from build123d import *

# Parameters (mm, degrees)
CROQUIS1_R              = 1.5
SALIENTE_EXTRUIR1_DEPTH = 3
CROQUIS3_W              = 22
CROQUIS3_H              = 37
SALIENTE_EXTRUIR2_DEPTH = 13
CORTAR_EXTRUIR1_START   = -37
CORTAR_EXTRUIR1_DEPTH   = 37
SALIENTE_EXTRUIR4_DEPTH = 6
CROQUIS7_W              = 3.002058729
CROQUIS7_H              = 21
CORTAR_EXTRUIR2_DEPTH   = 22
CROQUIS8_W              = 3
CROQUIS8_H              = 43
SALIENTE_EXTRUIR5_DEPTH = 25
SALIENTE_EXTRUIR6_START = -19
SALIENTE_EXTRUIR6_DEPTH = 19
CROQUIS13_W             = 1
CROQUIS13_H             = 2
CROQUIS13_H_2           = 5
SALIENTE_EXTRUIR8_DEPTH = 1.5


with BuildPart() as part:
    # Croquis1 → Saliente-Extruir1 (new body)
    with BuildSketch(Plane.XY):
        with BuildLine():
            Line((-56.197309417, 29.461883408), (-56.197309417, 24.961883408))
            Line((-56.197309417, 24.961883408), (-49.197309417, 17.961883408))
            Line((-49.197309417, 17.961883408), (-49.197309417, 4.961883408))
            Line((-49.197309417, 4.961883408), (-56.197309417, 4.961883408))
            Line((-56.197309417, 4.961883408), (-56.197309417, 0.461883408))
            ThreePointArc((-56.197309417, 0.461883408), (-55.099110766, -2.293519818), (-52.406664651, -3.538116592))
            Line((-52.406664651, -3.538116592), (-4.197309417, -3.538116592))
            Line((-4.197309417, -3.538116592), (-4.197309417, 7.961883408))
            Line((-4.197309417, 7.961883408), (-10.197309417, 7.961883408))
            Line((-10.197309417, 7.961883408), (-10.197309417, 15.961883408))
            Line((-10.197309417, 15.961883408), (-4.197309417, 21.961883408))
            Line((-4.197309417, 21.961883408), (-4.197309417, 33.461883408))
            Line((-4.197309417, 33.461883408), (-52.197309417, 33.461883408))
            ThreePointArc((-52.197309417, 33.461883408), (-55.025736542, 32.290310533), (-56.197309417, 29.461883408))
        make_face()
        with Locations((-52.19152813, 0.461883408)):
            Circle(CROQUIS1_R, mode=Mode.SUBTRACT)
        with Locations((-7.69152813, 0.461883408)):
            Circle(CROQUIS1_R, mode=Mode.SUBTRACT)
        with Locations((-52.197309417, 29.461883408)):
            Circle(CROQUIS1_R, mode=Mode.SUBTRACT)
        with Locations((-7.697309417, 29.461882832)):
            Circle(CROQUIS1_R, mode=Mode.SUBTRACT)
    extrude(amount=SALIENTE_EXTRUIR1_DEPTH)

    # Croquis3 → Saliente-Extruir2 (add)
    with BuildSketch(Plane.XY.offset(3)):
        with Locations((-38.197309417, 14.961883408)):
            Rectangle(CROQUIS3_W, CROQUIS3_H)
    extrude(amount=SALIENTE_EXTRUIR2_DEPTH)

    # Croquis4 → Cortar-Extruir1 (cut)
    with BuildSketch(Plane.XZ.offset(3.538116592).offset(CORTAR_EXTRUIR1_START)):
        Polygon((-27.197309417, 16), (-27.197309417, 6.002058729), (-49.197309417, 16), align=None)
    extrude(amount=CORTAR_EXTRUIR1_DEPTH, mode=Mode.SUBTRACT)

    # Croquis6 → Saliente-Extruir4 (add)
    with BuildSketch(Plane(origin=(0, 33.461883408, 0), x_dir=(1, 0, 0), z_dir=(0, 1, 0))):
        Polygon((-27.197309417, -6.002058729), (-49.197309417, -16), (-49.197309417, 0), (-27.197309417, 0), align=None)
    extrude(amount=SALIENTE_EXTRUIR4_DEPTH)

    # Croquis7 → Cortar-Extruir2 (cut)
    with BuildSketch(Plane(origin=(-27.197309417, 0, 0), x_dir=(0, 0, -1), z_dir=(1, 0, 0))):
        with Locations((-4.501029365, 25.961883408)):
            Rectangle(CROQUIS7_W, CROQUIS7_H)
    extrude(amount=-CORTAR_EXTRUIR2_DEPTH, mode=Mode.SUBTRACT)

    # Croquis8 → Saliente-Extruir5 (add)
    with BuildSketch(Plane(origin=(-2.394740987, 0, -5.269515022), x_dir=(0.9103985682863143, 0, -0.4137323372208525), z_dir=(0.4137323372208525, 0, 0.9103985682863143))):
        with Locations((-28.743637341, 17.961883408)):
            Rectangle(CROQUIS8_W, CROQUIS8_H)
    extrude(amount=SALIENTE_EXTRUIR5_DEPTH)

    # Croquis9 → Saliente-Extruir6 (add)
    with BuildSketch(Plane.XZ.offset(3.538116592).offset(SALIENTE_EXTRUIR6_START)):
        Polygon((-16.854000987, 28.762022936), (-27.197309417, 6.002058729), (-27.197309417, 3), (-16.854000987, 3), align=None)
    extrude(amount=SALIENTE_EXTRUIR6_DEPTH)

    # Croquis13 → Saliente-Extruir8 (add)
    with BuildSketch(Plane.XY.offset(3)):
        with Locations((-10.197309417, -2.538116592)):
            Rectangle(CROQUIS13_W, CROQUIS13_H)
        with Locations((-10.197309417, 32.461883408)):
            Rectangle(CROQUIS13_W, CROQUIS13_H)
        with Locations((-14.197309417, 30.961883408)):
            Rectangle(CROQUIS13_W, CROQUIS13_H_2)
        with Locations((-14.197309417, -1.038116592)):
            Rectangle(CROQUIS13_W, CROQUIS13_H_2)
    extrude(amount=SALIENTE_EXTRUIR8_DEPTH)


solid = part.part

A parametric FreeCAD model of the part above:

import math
import FreeCAD as App
import Part
import Sketcher
from FreeCAD import Vector
Q = App.Units.Quantity

doc = App.newDocument("Part")
params = doc.addObject("Spreadsheet::Sheet", "Params")
for row, (alias, value) in enumerate([
    ("sketch1_diameter", "3 mm"),
    ("sketch1_radius", "4 mm"),
    ("sketch1_width", "7 mm"),
    ("sketch1_width2", "6 mm"),
    ("sketch1_width3", "48 mm"),
    ("pad1_length", "3 mm"),
    ("sketch2_width", "22 mm"),
    ("sketch2_height", "37 mm"),
    ("pad2_length", "13 mm"),
    ("sketch3_width", "22 mm"),
    ("pocket1_length", "37 mm"),
    ("sketch4_width", "22 mm"),
    ("sketch4_height", "16 mm"),
    ("pad3_length", "6 mm"),
    ("sketch5_width", "21 mm"),
    ("pocket2_length", "22 mm"),
    ("sketch6_width", "3 mm"),
    ("sketch6_height", "43 mm"),
    ("pad4_length", "25 mm"),
    ("sketch7_length", "25 mm"),
    ("pad5_length", "19 mm"),
    ("sketch8_width", "1 mm"),
    ("sketch8_height", "2 mm"),
    ("sketch8_height2", "5 mm"),
    ("pad6_length", "1.5 mm"),
], start=1):
    params.set(f"A{row}", alias)
    params.set(f"B{row}", "=" + value)
    params.setAlias(f"B{row}", alias)

body = doc.addObject("PartDesign::Body", "Body")

sketch1 = doc.addObject("Sketcher::SketchObject", "Sketch")
body.addObject(sketch1)
sketch1.AttachmentSupport = (doc.XY_Plane, [""])
sketch1.MapMode = "FlatFace"
sketch1.addGeometry(Part.LineSegment(Vector(-56.2, 29.5, 0), Vector(-56.2, 25, 0)), False)
sketch1.addGeometry(Part.LineSegment(Vector(-56.2, 25, 0), Vector(-49.2, 18, 0)), False)
sketch1.addGeometry(Part.LineSegment(Vector(-49.2, 18, 0), Vector(-49.2, 5, 0)), False)
sketch1.addGeometry(Part.LineSegment(Vector(-49.2, 5, 0), Vector(-56.2, 5, 0)), False)
sketch1.addGeometry(Part.LineSegment(Vector(-56.2, 5, 0), Vector(-56.2, 0.5, 0)), False)
sketch1.addGeometry(Part.ArcOfCircle(Part.Circle(Vector(-52.2, 0.5, 0), Vector(0, 0, 1), 4), math.radians(180), math.radians(267)), False)
sketch1.addGeometry(Part.LineSegment(Vector(-52.4, -3.5, 0), Vector(-4.2, -3.5, 0)), False)
sketch1.addGeometry(Part.LineSegment(Vector(-4.2, -3.5, 0), Vector(-4.2, 8, 0)), False)
sketch1.addGeometry(Part.LineSegment(Vector(-4.2, 8, 0), Vector(-10.2, 8, 0)), False)
sketch1.addGeometry(Part.LineSegment(Vector(-10.2, 8, 0), Vector(-10.2, 16, 0)), False)
sketch1.addGeometry(Part.LineSegment(Vector(-10.2, 16, 0), Vector(-4.2, 22, 0)), False)
sketch1.addGeometry(Part.LineSegment(Vector(-4.2, 22, 0), Vector(-4.2, 33.5, 0)), False)
sketch1.addGeometry(Part.LineSegment(Vector(-4.2, 33.5, 0), Vector(-52.2, 33.5, 0)), False)
sketch1.addGeometry(Part.ArcOfCircle(Part.Circle(Vector(-52.2, 29.5, 0), Vector(0, 0, 1), 4), math.radians(90), math.radians(180)), False)
sketch1.addGeometry(Part.Circle(Vector(-52.2, 0.5, 0), Vector(0, 0, 1), 1.5), False)
sketch1.addGeometry(Part.Circle(Vector(-7.7, 0.5, 0), Vector(0, 0, 1), 1.5), False)
sketch1.addGeometry(Part.Circle(Vector(-52.2, 29.5, 0), Vector(0, 0, 1), 1.5), False)
sketch1.addGeometry(Part.Circle(Vector(-7.7, 29.5, 0), Vector(0, 0, 1), 1.5), False)
sketch1.addConstraint(Sketcher.Constraint("Coincident", 0, 2, 1, 1))
sketch1.addConstraint(Sketcher.Constraint("Coincident", 1, 2, 2, 1))
sketch1.addConstraint(Sketcher.Constraint("Coincident", 2, 2, 3, 1))
sketch1.addConstraint(Sketcher.Constraint("Coincident", 3, 2, 4, 1))
sketch1.addConstraint(Sketcher.Constraint("Tangent", 4, 2, 5, 1))
sketch1.addConstraint(Sketcher.Constraint("Coincident", 5, 2, 6, 1))
sketch1.addConstraint(Sketcher.Constraint("Coincident", 6, 2, 7, 1))
sketch1.addConstraint(Sketcher.Constraint("Coincident", 7, 2, 8, 1))
sketch1.addConstraint(Sketcher.Constraint("Coincident", 8, 2, 9, 1))
sketch1.addConstraint(Sketcher.Constraint("Coincident", 9, 2, 10, 1))
sketch1.addConstraint(Sketcher.Constraint("Coincident", 10, 2, 11, 1))
sketch1.addConstraint(Sketcher.Constraint("Coincident", 11, 2, 12, 1))
sketch1.addConstraint(Sketcher.Constraint("Tangent", 12, 2, 13, 1))
sketch1.addConstraint(Sketcher.Constraint("Tangent", 13, 2, 0, 1))
sketch1.addConstraint(Sketcher.Constraint("Vertical", 0))
sketch1.addConstraint(Sketcher.Constraint("Vertical", 2))
sketch1.addConstraint(Sketcher.Constraint("Horizontal", 3))
sketch1.addConstraint(Sketcher.Constraint("Vertical", 4))
sketch1.addConstraint(Sketcher.Constraint("Horizontal", 6))
sketch1.addConstraint(Sketcher.Constraint("Vertical", 7))
sketch1.addConstraint(Sketcher.Constraint("Horizontal", 8))
sketch1.addConstraint(Sketcher.Constraint("Vertical", 9))
sketch1.addConstraint(Sketcher.Constraint("Vertical", 11))
sketch1.addConstraint(Sketcher.Constraint("Horizontal", 12))
sketch1.addConstraint(Sketcher.Constraint("Coincident", 14, 3, 5, 3))
sketch1.addConstraint(Sketcher.Constraint("Coincident", 16, 3, 13, 3))
sketch1.addConstraint(Sketcher.Constraint("Equal", 14, 15))
sketch1.addConstraint(Sketcher.Constraint("Equal", 15, 16))
sketch1.addConstraint(Sketcher.Constraint("Equal", 16, 17))
sketch1.addConstraint(Sketcher.Constraint("Perpendicular", 1, 10))
sketch1.addConstraint(Sketcher.Constraint("Horizontal", 14, 3, 15, 3))
sketch1.addConstraint(Sketcher.Constraint("Horizontal", 16, 3, 17, 3))
sketch1.addConstraint(Sketcher.Constraint("Vertical", 0, 2, 3, 2))
sketch1.addConstraint(Sketcher.Constraint("Vertical", 7, 2, 10, 2))
sketch1.addConstraint(Sketcher.Constraint("Equal", 0, 4))
sketch1.addConstraint(Sketcher.Constraint("Equal", 7, 11))
sketch1.addConstraint(Sketcher.Constraint("Diameter", 14, 3.0))
sketch1.addConstraint(Sketcher.Constraint("Radius", 13, 4.0))
sketch1.addConstraint(Sketcher.Constraint("DistanceX", 3, 2, 3, 1, 7.0))
sketch1.addConstraint(Sketcher.Constraint("DistanceX", 8, 2, 8, 1, 6.0))
sketch1.addConstraint(Sketcher.Constraint("DistanceX", 12, 2, 12, 1, 48.0))
sketch1.addConstraint(Sketcher.Constraint("DistanceY", 2, 2, 2, 1, 13.0))
sketch1.addConstraint(Sketcher.Constraint("DistanceY", 9, 1, 9, 2, 8.0))
sketch1.addConstraint(Sketcher.Constraint("Angle", 1, Q("-45 deg")))
sketch1.addConstraint(Sketcher.Constraint("DistanceY", 0, 2, 0, 1, 4.5))
sketch1.addConstraint(Sketcher.Constraint("DistanceY", 7, 1, 7, 2, 11.5))
sketch1.addConstraint(Sketcher.Constraint("DistanceX", 5, 3, 15, 3, 44.5))
sketch1.addConstraint(Sketcher.Constraint("DistanceX", 16, 3, 17, 3, 44.5))
sketch1.addConstraint(Sketcher.Constraint("Radius", 5, 4.005781))
sketch1.addConstraint(Sketcher.Constraint("DistanceX", 5, 3, -1, 1, 52.191528))
sketch1.addConstraint(Sketcher.Constraint("DistanceY", -1, 1, 5, 3, 0.461883))
sketch1.setExpression("Constraints[36]", "Params.sketch1_diameter")
sketch1.setExpression("Constraints[37]", "Params.sketch1_radius")
sketch1.setExpression("Constraints[38]", "Params.sketch1_width")
sketch1.setExpression("Constraints[39]", "Params.sketch1_width2")
sketch1.setExpression("Constraints[40]", "Params.sketch1_width3")
pad1 = doc.addObject("PartDesign::Pad", "Pad")
body.addObject(pad1)
pad1.Profile = sketch1
pad1.setExpression("Length", "Params.pad1_length")

sketch2 = doc.addObject("Sketcher::SketchObject", "Sketch001")
body.addObject(sketch2)
sketch2.AttachmentSupport = (doc.XY_Plane, [""])
sketch2.MapMode = "FlatFace"
sketch2.AttachmentOffset = App.Placement(Vector(0, 0, 3), App.Rotation())
sketch2.addGeometry(Part.LineSegment(Vector(-49, 33, 0), Vector(-49, -4, 0)), False)
sketch2.addGeometry(Part.LineSegment(Vector(-49, -4, 0), Vector(-27, -4, 0)), False)
sketch2.addGeometry(Part.LineSegment(Vector(-27, -4, 0), Vector(-27, 33, 0)), False)
sketch2.addGeometry(Part.LineSegment(Vector(-27, 33, 0), Vector(-49, 33, 0)), False)
sketch2.addConstraint(Sketcher.Constraint("Coincident", 0, 2, 1, 1))
sketch2.addConstraint(Sketcher.Constraint("Coincident", 1, 2, 2, 1))
sketch2.addConstraint(Sketcher.Constraint("Coincident", 2, 2, 3, 1))
sketch2.addConstraint(Sketcher.Constraint("Coincident", 3, 2, 0, 1))
sketch2.addConstraint(Sketcher.Constraint("Vertical", 0))
sketch2.addConstraint(Sketcher.Constraint("Horizontal", 1))
sketch2.addConstraint(Sketcher.Constraint("Vertical", 2))
sketch2.addConstraint(Sketcher.Constraint("Horizontal", 3))
sketch2.addConstraint(Sketcher.Constraint("DistanceX", 1, 1, 1, 2, 22.0))
sketch2.addConstraint(Sketcher.Constraint("DistanceY", 0, 2, 0, 1, 37.0))
sketch2.addConstraint(Sketcher.Constraint("DistanceX", 0, 2, -1, 1, 49.197309))
sketch2.addConstraint(Sketcher.Constraint("DistanceY", 0, 2, -1, 1, 3.538117))
sketch2.setExpression("Constraints[8]", "Params.sketch2_width")
sketch2.setExpression("Constraints[9]", "Params.sketch2_height")
pad2 = doc.addObject("PartDesign::Pad", "Pad001")
body.addObject(pad2)
pad2.Profile = sketch2
pad2.setExpression("Length", "Params.pad2_length")

sketch3 = doc.addObject("Sketcher::SketchObject", "Sketch002")
body.addObject(sketch3)
sketch3.AttachmentSupport = (doc.XZ_Plane, [""])
sketch3.MapMode = "FlatFace"
sketch3.AttachmentOffset = App.Placement(Vector(0, 0, -33.461883), App.Rotation())
sketch3.addGeometry(Part.LineSegment(Vector(-27, 6, 0), Vector(-27, 16, 0)), False)
sketch3.addGeometry(Part.LineSegment(Vector(-27, 16, 0), Vector(-49, 16, 0)), False)
sketch3.addGeometry(Part.LineSegment(Vector(-49, 16, 0), Vector(-27, 6, 0)), False)
sketch3.addConstraint(Sketcher.Constraint("Coincident", 0, 2, 1, 1))
sketch3.addConstraint(Sketcher.Constraint("Coincident", 1, 2, 2, 1))
sketch3.addConstraint(Sketcher.Constraint("Coincident", 2, 2, 0, 1))
sketch3.addConstraint(Sketcher.Constraint("Vertical", 0))
sketch3.addConstraint(Sketcher.Constraint("Horizontal", 1))
sketch3.addConstraint(Sketcher.Constraint("DistanceX", 1, 2, 1, 1, 22.0))
sketch3.addConstraint(Sketcher.Constraint("DistanceY", -1, 1, 0, 2, 16.0))
sketch3.addConstraint(Sketcher.Constraint("DistanceY", 0, 1, 0, 2, 9.997941))
sketch3.addConstraint(Sketcher.Constraint("DistanceX", 0, 2, -1, 1, 27.197309))
sketch3.setExpression("Constraints[5]", "Params.sketch3_width")
pocket1 = doc.addObject("PartDesign::Pocket", "Pocket")
body.addObject(pocket1)
pocket1.Profile = sketch3
pocket1.setExpression("Length", "Params.pocket1_length")
pocket1.Reversed = True

sketch4 = doc.addObject("Sketcher::SketchObject", "Sketch003")
body.addObject(sketch4)
sketch4.AttachmentSupport = (doc.XZ_Plane, [""])
sketch4.MapMode = "FlatFace"
sketch4.AttachmentOffset = App.Placement(Vector(0, 0, -33.461883), App.Rotation())
sketch4.addGeometry(Part.LineSegment(Vector(-49, 16, 0), Vector(-27, 6, 0)), False)
sketch4.addGeometry(Part.LineSegment(Vector(-27, 6, 0), Vector(-27, 0, 0)), False)
sketch4.addGeometry(Part.LineSegment(Vector(-27, 0, 0), Vector(-49, 0, 0)), False)
sketch4.addGeometry(Part.LineSegment(Vector(-49, 0, 0), Vector(-49, 16, 0)), False)
sketch4.addConstraint(Sketcher.Constraint("Coincident", 0, 2, 1, 1))
sketch4.addConstraint(Sketcher.Constraint("Coincident", 1, 2, 2, 1))
sketch4.addConstraint(Sketcher.Constraint("Coincident", 2, 2, 3, 1))
sketch4.addConstraint(Sketcher.Constraint("Coincident", 3, 2, 0, 1))
sketch4.addConstraint(Sketcher.Constraint("Vertical", 1))
sketch4.addConstraint(Sketcher.Constraint("Horizontal", 2))
sketch4.addConstraint(Sketcher.Constraint("Vertical", 3))
sketch4.addConstraint(Sketcher.Constraint("PointOnObject", 1, 2, -1))
sketch4.addConstraint(Sketcher.Constraint("DistanceX", 2, 2, 2, 1, 22.0))
sketch4.addConstraint(Sketcher.Constraint("DistanceY", 3, 1, 3, 2, 16.0))
sketch4.addConstraint(Sketcher.Constraint("DistanceY", 1, 2, 1, 1, 6.002059))
sketch4.addConstraint(Sketcher.Constraint("DistanceX", 0, 2, -1, 1, 27.197309))
sketch4.setExpression("Constraints[8]", "Params.sketch4_width")
sketch4.setExpression("Constraints[9]", "Params.sketch4_height")
pad3 = doc.addObject("PartDesign::Pad", "Pad002")
body.addObject(pad3)
pad3.Profile = sketch4
pad3.setExpression("Length", "Params.pad3_length")
pad3.Reversed = True

sketch5 = doc.addObject("Sketcher::SketchObject", "Sketch004")
body.addObject(sketch5)
sketch5.AttachmentSupport = (doc.YZ_Plane, [""])
sketch5.MapMode = "FlatFace"
sketch5.AttachmentOffset = App.Placement(Vector(0, 0, -27.197309), App.Rotation())
sketch5.addGeometry(Part.LineSegment(Vector(36.5, 6, 0), Vector(15.5, 6, 0)), False)
sketch5.addGeometry(Part.LineSegment(Vector(15.5, 6, 0), Vector(15.5, 3, 0)), False)
sketch5.addGeometry(Part.LineSegment(Vector(15.5, 3, 0), Vector(36.5, 3, 0)), False)
sketch5.addGeometry(Part.LineSegment(Vector(36.5, 3, 0), Vector(36.5, 6, 0)), False)
sketch5.addConstraint(Sketcher.Constraint("Coincident", 0, 2, 1, 1))
sketch5.addConstraint(Sketcher.Constraint("Coincident", 1, 2, 2, 1))
sketch5.addConstraint(Sketcher.Constraint("Coincident", 2, 2, 3, 1))
sketch5.addConstraint(Sketcher.Constraint("Coincident", 3, 2, 0, 1))
sketch5.addConstraint(Sketcher.Constraint("Horizontal", 0))
sketch5.addConstraint(Sketcher.Constraint("Vertical", 1))
sketch5.addConstraint(Sketcher.Constraint("Horizontal", 2))
sketch5.addConstraint(Sketcher.Constraint("Vertical", 3))
sketch5.addConstraint(Sketcher.Constraint("DistanceX", 0, 2, 0, 1, 21.0))
sketch5.addConstraint(Sketcher.Constraint("DistanceY", -1, 1, 1, 2, 3.0))
sketch5.addConstraint(Sketcher.Constraint("DistanceY", 1, 2, 1, 1, 3.002059))
sketch5.addConstraint(Sketcher.Constraint("DistanceX", -1, 1, 0, 2, 15.461883))
sketch5.setExpression("Constraints[8]", "Params.sketch5_width")
pocket2 = doc.addObject("PartDesign::Pocket", "Pocket001")
body.addObject(pocket2)
pocket2.Profile = sketch5
pocket2.setExpression("Length", "Params.pocket2_length")

sketch6 = doc.addObject("Sketcher::SketchObject", "Sketch005")
body.addObject(sketch6)
sketch6.Placement = App.Placement(Vector(-2.394741, 0, -5.269515), App.Rotation(Vector(0.910398568, 0, -0.413732337), Vector(0, 0.999999999, 0), Vector(0.413732337, 0, 0.910398568), "ZXY"))
sketch6.addGeometry(Part.LineSegment(Vector(-30.2, 39.5, 0), Vector(-30.2, -3.5, 0)), False)
sketch6.addGeometry(Part.LineSegment(Vector(-30.2, -3.5, 0), Vector(-27.2, -3.5, 0)), False)
sketch6.addGeometry(Part.LineSegment(Vector(-27.2, -3.5, 0), Vector(-27.2, 39.5, 0)), False)
sketch6.addGeometry(Part.LineSegment(Vector(-27.2, 39.5, 0), Vector(-30.2, 39.5, 0)), False)
sketch6.addConstraint(Sketcher.Constraint("Coincident", 0, 2, 1, 1))
sketch6.addConstraint(Sketcher.Constraint("Coincident", 1, 2, 2, 1))
sketch6.addConstraint(Sketcher.Constraint("Coincident", 2, 2, 3, 1))
sketch6.addConstraint(Sketcher.Constraint("Coincident", 3, 2, 0, 1))
sketch6.addConstraint(Sketcher.Constraint("Vertical", 0))
sketch6.addConstraint(Sketcher.Constraint("Horizontal", 1))
sketch6.addConstraint(Sketcher.Constraint("Vertical", 2))
sketch6.addConstraint(Sketcher.Constraint("Horizontal", 3))
sketch6.addConstraint(Sketcher.Constraint("DistanceX", 1, 1, 1, 2, 3.0))
sketch6.addConstraint(Sketcher.Constraint("DistanceY", 0, 2, 0, 1, 43.0))
sketch6.addConstraint(Sketcher.Constraint("DistanceX", 0, 2, -1, 1, 30.243637))
sketch6.addConstraint(Sketcher.Constraint("DistanceY", 0, 2, -1, 1, 3.538117))
sketch6.setExpression("Constraints[8]", "Params.sketch6_width")
sketch6.setExpression("Constraints[9]", "Params.sketch6_height")
pad4 = doc.addObject("PartDesign::Pad", "Pad003")
body.addObject(pad4)
pad4.Profile = sketch6
pad4.setExpression("Length", "Params.pad4_length")

sketch7 = doc.addObject("Sketcher::SketchObject", "Sketch006")
body.addObject(sketch7)
sketch7.AttachmentSupport = (doc.XZ_Plane, [""])
sketch7.MapMode = "FlatFace"
sketch7.AttachmentOffset = App.Placement(Vector(0, 0, -15.461883), App.Rotation())
sketch7.addGeometry(Part.LineSegment(Vector(-16.9, 28.8, 0), Vector(-27.2, 6, 0)), False)
sketch7.addGeometry(Part.LineSegment(Vector(-27.2, 6, 0), Vector(-27.2, 3, 0)), False)
sketch7.addGeometry(Part.LineSegment(Vector(-27.2, 3, 0), Vector(-16.9, 3, 0)), False)
sketch7.addGeometry(Part.LineSegment(Vector(-16.9, 3, 0), Vector(-16.9, 28.8, 0)), False)
sketch7.addConstraint(Sketcher.Constraint("Coincident", 0, 2, 1, 1))
sketch7.addConstraint(Sketcher.Constraint("Coincident", 1, 2, 2, 1))
sketch7.addConstraint(Sketcher.Constraint("Coincident", 2, 2, 3, 1))
sketch7.addConstraint(Sketcher.Constraint("Coincident", 3, 2, 0, 1))
sketch7.addConstraint(Sketcher.Constraint("Vertical", 1))
sketch7.addConstraint(Sketcher.Constraint("Horizontal", 2))
sketch7.addConstraint(Sketcher.Constraint("Vertical", 3))
sketch7.addConstraint(Sketcher.Constraint("Distance", 0, 25.0))
sketch7.addConstraint(Sketcher.Constraint("DistanceY", -1, 1, 1, 2, 3.0))
sketch7.addConstraint(Sketcher.Constraint("DistanceX", 2, 2, -1, 1, 16.854001))
sketch7.addConstraint(Sketcher.Constraint("DistanceX", 2, 1, 2, 2, 10.343308))
sketch7.addConstraint(Sketcher.Constraint("DistanceY", 1, 2, 1, 1, 3.002059))
sketch7.setExpression("Constraints[7]", "Params.sketch7_length")
pad5 = doc.addObject("PartDesign::Pad", "Pad004")
body.addObject(pad5)
pad5.Profile = sketch7
pad5.setExpression("Length", "Params.pad5_length")

sketch8 = doc.addObject("Sketcher::SketchObject", "Sketch007")
body.addObject(sketch8)
sketch8.AttachmentSupport = (doc.XY_Plane, [""])
sketch8.MapMode = "FlatFace"
sketch8.AttachmentOffset = App.Placement(Vector(0, 0, 3), App.Rotation())
sketch8.addGeometry(Part.LineSegment(Vector(-10.7, -1.5, 0), Vector(-10.7, -3.5, 0)), False)
sketch8.addGeometry(Part.LineSegment(Vector(-10.7, -3.5, 0), Vector(-9.7, -3.5, 0)), False)
sketch8.addGeometry(Part.LineSegment(Vector(-9.7, -3.5, 0), Vector(-9.7, -1.5, 0)), False)
sketch8.addGeometry(Part.LineSegment(Vector(-9.7, -1.5, 0), Vector(-10.7, -1.5, 0)), False)
sketch8.addGeometry(Part.LineSegment(Vector(-10.7, 33.5, 0), Vector(-10.7, 31.5, 0)), False)
sketch8.addGeometry(Part.LineSegment(Vector(-10.7, 31.5, 0), Vector(-9.7, 31.5, 0)), False)
sketch8.addGeometry(Part.LineSegment(Vector(-9.7, 31.5, 0), Vector(-9.7, 33.5, 0)), False)
sketch8.addGeometry(Part.LineSegment(Vector(-9.7, 33.5, 0), Vector(-10.7, 33.5, 0)), False)
sketch8.addGeometry(Part.LineSegment(Vector(-14.7, 33.5, 0), Vector(-14.7, 28.5, 0)), False)
sketch8.addGeometry(Part.LineSegment(Vector(-14.7, 28.5, 0), Vector(-13.7, 28.5, 0)), False)
sketch8.addGeometry(Part.LineSegment(Vector(-13.7, 28.5, 0), Vector(-13.7, 33.5, 0)), False)
sketch8.addGeometry(Part.LineSegment(Vector(-13.7, 33.5, 0), Vector(-14.7, 33.5, 0)), False)
sketch8.addGeometry(Part.LineSegment(Vector(-14.7, 1.5, 0), Vector(-14.7, -3.5, 0)), False)
sketch8.addGeometry(Part.LineSegment(Vector(-14.7, -3.5, 0), Vector(-13.7, -3.5, 0)), False)
sketch8.addGeometry(Part.LineSegment(Vector(-13.7, -3.5, 0), Vector(-13.7, 1.5, 0)), False)
sketch8.addGeometry(Part.LineSegment(Vector(-13.7, 1.5, 0), Vector(-14.7, 1.5, 0)), False)
sketch8.addConstraint(Sketcher.Constraint("Coincident", 0, 2, 1, 1))
sketch8.addConstraint(Sketcher.Constraint("Coincident", 1, 2, 2, 1))
sketch8.addConstraint(Sketcher.Constraint("Coincident", 2, 2, 3, 1))
sketch8.addConstraint(Sketcher.Constraint("Coincident", 3, 2, 0, 1))
sketch8.addConstraint(Sketcher.Constraint("Coincident", 4, 2, 5, 1))
sketch8.addConstraint(Sketcher.Constraint("Coincident", 5, 2, 6, 1))
sketch8.addConstraint(Sketcher.Constraint("Coincident", 6, 2, 7, 1))
sketch8.addConstraint(Sketcher.Constraint("Coincident", 7, 2, 4, 1))
sketch8.addConstraint(Sketcher.Constraint("Coincident", 8, 2, 9, 1))
sketch8.addConstraint(Sketcher.Constraint("Coincident", 9, 2, 10, 1))
sketch8.addConstraint(Sketcher.Constraint("Coincident", 10, 2, 11, 1))
sketch8.addConstraint(Sketcher.Constraint("Coincident", 11, 2, 8, 1))
sketch8.addConstraint(Sketcher.Constraint("Coincident", 12, 2, 13, 1))
sketch8.addConstraint(Sketcher.Constraint("Coincident", 13, 2, 14, 1))
sketch8.addConstraint(Sketcher.Constraint("Coincident", 14, 2, 15, 1))
sketch8.addConstraint(Sketcher.Constraint("Coincident", 15, 2, 12, 1))
sketch8.addConstraint(Sketcher.Constraint("Vertical", 0))
sketch8.addConstraint(Sketcher.Constraint("Horizontal", 1))
sketch8.addConstraint(Sketcher.Constraint("Vertical", 2))
sketch8.addConstraint(Sketcher.Constraint("Horizontal", 3))
sketch8.addConstraint(Sketcher.Constraint("Vertical", 4))
sketch8.addConstraint(Sketcher.Constraint("Horizontal", 5))
sketch8.addConstraint(Sketcher.Constraint("Vertical", 6))
sketch8.addConstraint(Sketcher.Constraint("Horizontal", 7))
sketch8.addConstraint(Sketcher.Constraint("Vertical", 8))
sketch8.addConstraint(Sketcher.Constraint("Horizontal", 9))
sketch8.addConstraint(Sketcher.Constraint("Vertical", 10))
sketch8.addConstraint(Sketcher.Constraint("Horizontal", 11))
sketch8.addConstraint(Sketcher.Constraint("Vertical", 12))
sketch8.addConstraint(Sketcher.Constraint("Horizontal", 13))
sketch8.addConstraint(Sketcher.Constraint("Vertical", 14))
sketch8.addConstraint(Sketcher.Constraint("Horizontal", 15))
sketch8.addConstraint(Sketcher.Constraint("Horizontal", 7, 2, 10, 2))
sketch8.addConstraint(Sketcher.Constraint("Horizontal", 1, 2, 12, 2))
sketch8.addConstraint(Sketcher.Constraint("Vertical", 3, 2, 4, 2))
sketch8.addConstraint(Sketcher.Constraint("Vertical", 2, 2, 5, 2))
sketch8.addConstraint(Sketcher.Constraint("Vertical", 11, 2, 12, 2))
sketch8.addConstraint(Sketcher.Constraint("Vertical", 10, 2, 13, 2))
sketch8.addConstraint(Sketcher.Constraint("Equal", 7, 9))
sketch8.addConstraint(Sketcher.Constraint("Equal", 2, 4))
sketch8.addConstraint(Sketcher.Constraint("Equal", 10, 12))
sketch8.addConstraint(Sketcher.Constraint("DistanceX", 1, 1, 1, 2, 1.0))
sketch8.addConstraint(Sketcher.Constraint("DistanceY", 0, 2, 0, 1, 2.0))
sketch8.addConstraint(Sketcher.Constraint("DistanceY", 8, 2, 8, 1, 5.0))
sketch8.addConstraint(Sketcher.Constraint("DistanceY", 3, 2, 4, 2, 33.0))
sketch8.addConstraint(Sketcher.Constraint("DistanceX", 8, 2, 4, 2, 4.0))
sketch8.addConstraint(Sketcher.Constraint("DistanceX", 0, 2, -1, 1, 10.697309))
sketch8.addConstraint(Sketcher.Constraint("DistanceY", 0, 2, -1, 1, 3.538117))
sketch8.setExpression("Constraints[41]", "Params.sketch8_width")
sketch8.setExpression("Constraints[42]", "Params.sketch8_height")
sketch8.setExpression("Constraints[43]", "Params.sketch8_height2")
pad6 = doc.addObject("PartDesign::Pad", "Pad005")
body.addObject(pad6)
pad6.Profile = sketch8
pad6.setExpression("Length", "Params.pad6_length")

doc.recompute()
